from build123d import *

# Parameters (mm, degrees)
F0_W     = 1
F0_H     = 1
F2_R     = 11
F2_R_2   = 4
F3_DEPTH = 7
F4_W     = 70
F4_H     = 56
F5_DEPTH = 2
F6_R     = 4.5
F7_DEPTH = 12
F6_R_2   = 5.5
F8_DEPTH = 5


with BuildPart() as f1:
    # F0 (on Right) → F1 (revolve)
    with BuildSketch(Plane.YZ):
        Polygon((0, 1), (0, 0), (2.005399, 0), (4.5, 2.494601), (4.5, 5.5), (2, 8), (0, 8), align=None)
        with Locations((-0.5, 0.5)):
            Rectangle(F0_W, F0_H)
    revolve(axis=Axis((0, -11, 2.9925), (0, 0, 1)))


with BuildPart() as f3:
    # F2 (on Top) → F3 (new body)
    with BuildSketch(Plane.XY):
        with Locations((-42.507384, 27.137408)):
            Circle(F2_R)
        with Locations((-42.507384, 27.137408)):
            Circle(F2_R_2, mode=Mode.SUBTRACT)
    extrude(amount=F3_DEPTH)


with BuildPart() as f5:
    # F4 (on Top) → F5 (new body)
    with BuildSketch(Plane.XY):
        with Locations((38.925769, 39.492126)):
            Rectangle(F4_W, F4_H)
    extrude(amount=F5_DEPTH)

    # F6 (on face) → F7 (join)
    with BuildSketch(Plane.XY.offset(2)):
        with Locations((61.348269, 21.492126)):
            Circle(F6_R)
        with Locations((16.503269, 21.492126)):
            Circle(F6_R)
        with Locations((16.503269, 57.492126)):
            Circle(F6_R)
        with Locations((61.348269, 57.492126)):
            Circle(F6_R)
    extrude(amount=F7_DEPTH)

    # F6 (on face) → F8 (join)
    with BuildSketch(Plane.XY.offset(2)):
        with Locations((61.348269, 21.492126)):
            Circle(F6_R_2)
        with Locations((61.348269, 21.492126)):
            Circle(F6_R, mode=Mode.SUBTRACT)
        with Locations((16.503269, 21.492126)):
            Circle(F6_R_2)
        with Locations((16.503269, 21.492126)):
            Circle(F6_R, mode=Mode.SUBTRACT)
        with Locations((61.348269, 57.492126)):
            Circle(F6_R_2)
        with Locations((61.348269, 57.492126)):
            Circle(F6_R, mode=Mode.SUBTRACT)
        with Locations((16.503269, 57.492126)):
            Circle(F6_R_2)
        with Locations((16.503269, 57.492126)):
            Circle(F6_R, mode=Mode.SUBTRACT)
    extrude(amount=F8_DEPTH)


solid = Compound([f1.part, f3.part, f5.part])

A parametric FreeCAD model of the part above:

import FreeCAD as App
import Part
import Sketcher
Q = App.Units.Quantity

doc = App.newDocument("Part")
body = doc.addObject("PartDesign::Body", "Body")

# Sketch on YZ plane
sketch1 = body.newObject("Sketcher::SketchObject", "Sketch")
sketch1.AttachmentSupport = (doc.getObject("YZ_Plane"), [""])
sketch1.MapMode = "FlatFace"
sketch1.addGeometry(Part.LineSegment(App.Vector(2.005399, 0, 0), App.Vector(4.5, 2.494601, 0)), False)
sketch1.addGeometry(Part.LineSegment(App.Vector(4.5, 2.494601, 0), App.Vector(4.5, 5.5, 0)), False)
sketch1.addGeometry(Part.LineSegment(App.Vector(4.5, 5.5, 0), App.Vector(2, 8, 0)), False)
sketch1.addGeometry(Part.LineSegment(App.Vector(2, 8, 0), App.Vector(0, 8, 0)), False)
sketch1.addGeometry(Part.LineSegment(App.Vector(0, 8, 0), App.Vector(0, 1, 0)), False)
sketch1.addGeometry(Part.LineSegment(App.Vector(0, 1, 0), App.Vector(-1, 1, 0)), False)
sketch1.addGeometry(Part.LineSegment(App.Vector(-1, 1, 0), App.Vector(-1, 0, 0)), False)
sketch1.addGeometry(Part.LineSegment(App.Vector(-1, 0, 0), App.Vector(2.005399, 0, 0)), False)
sketch1.addGeometry(Part.LineSegment(App.Vector(-11, 0, 0), App.Vector(-11, 8, 0)), True)  # axis
sketch1.addConstraint(Sketcher.Constraint("Coincident", 0, 2, 1, 1))
sketch1.addConstraint(Sketcher.Constraint("Coincident", 1, 2, 2, 1))
sketch1.addConstraint(Sketcher.Constraint("Coincident", 2, 2, 3, 1))
sketch1.addConstraint(Sketcher.Constraint("Coincident", 3, 2, 4, 1))
sketch1.addConstraint(Sketcher.Constraint("Coincident", 4, 2, 5, 1))
sketch1.addConstraint(Sketcher.Constraint("Coincident", 5, 2, 6, 1))
sketch1.addConstraint(Sketcher.Constraint("Coincident", 6, 2, 7, 1))
sketch1.addConstraint(Sketcher.Constraint("Coincident", 7, 2, 0, 1))
sketch1.addConstraint(Sketcher.Constraint("Vertical", 1))
sketch1.addConstraint(Sketcher.Constraint("Horizontal", 3))
sketch1.addConstraint(Sketcher.Constraint("Vertical", 4))
sketch1.addConstraint(Sketcher.Constraint("Horizontal", 5))
sketch1.addConstraint(Sketcher.Constraint("Vertical", 6))
sketch1.addConstraint(Sketcher.Constraint("Horizontal", 7))
sketch1.addConstraint(Sketcher.Constraint("Vertical", 8))
sketch1.addConstraint(Sketcher.Constraint("PointOnObject", 3, 2, -2))
sketch1.addConstraint(Sketcher.Constraint("PointOnObject", 6, 2, -1))
sketch1.addConstraint(Sketcher.Constraint("PointOnObject", 8, 1, -1))
sketch1.addConstraint(Sketcher.Constraint("Perpendicular", 0, 2))
sketch1.addConstraint(Sketcher.Constraint("Horizontal", 3, 2, 8, 2))
sketch1.addConstraint(Sketcher.Constraint("Equal", 7, 1))
sketch1.addConstraint(Sketcher.Constraint("Equal", 5, 6))
sketch1.addConstraint(Sketcher.Constraint("DistanceX", 3, 2, 3, 1, Q("2 mm")))
sketch1.addConstraint(Sketcher.Constraint("DistanceX", 5, 2, 5, 1, Q("1 mm")))
sketch1.addConstraint(Sketcher.Constraint("DistanceY", 4, 2, 4, 1, Q("7 mm")))
sketch1.addConstraint(Sketcher.Constraint("Angle", 0, Q("45 deg")))
sketch1.addConstraint(Sketcher.Constraint("DistanceX", 8, 1, -1, 1, Q("11 mm")))
sketch1.addConstraint(Sketcher.Constraint("DistanceX", 7, 1, 7, 2, Q("3.005399 mm")))
revolution = body.newObject("PartDesign::Revolution", "Revolution")
revolution.Profile = sketch1
revolution.ReferenceAxis = (sketch1, ["Axis0"])
revolution.Angle = 360
body2 = doc.addObject("PartDesign::Body", "Body001")

# Sketch on XY plane
sketch2 = body2.newObject("Sketcher::SketchObject", "Sketch001")
sketch2.AttachmentSupport = (doc.getObject("XY_Plane001"), [""])
sketch2.MapMode = "FlatFace"
sketch2.addGeometry(Part.Circle(App.Vector(-42.507384, 27.137408, 0), App.Vector(0, 0, 1), 11), False)
sketch2.addGeometry(Part.Circle(App.Vector(-42.507384, 27.137408, 0), App.Vector(0, 0, 1), 4), False)
sketch2.addConstraint(Sketcher.Constraint("Coincident", 1, 3, 0, 3))
sketch2.addConstraint(Sketcher.Constraint("Diameter", 0, Q("22 mm")))
sketch2.addConstraint(Sketcher.Constraint("Diameter", 1, Q("8 mm")))
sketch2.addConstraint(Sketcher.Constraint("DistanceY", -1, 1, 0, 3, Q("27.137408 mm")))
sketch2.addConstraint(Sketcher.Constraint("DistanceX", 0, 3, -1, 1, Q("42.507384 mm")))
pad1 = body2.newObject("PartDesign::Pad", "Pad")
pad1.Profile = sketch2
pad1.Length = 7
body3 = doc.addObject("PartDesign::Body", "Body002")

# Sketch on XY plane
sketch3 = body3.newObject("Sketcher::SketchObject", "Sketch002")
sketch3.AttachmentSupport = (doc.getObject("XY_Plane002"), [""])
sketch3.MapMode = "FlatFace"
sketch3.addGeometry(Part.LineSegment(App.Vector(3.925769, 67.492126, 0), App.Vector(3.925769, 11.492126, 0)), False)
sketch3.addGeometry(Part.LineSegment(App.Vector(3.925769, 11.492126, 0), App.Vector(73.925769, 11.492126, 0)), False)
sketch3.addGeometry(Part.LineSegment(App.Vector(73.925769, 11.492126, 0), App.Vector(73.925769, 67.492126, 0)), False)
sketch3.addGeometry(Part.LineSegment(App.Vector(73.925769, 67.492126, 0), App.Vector(3.925769, 67.492126, 0)), False)
sketch3.addConstraint(Sketcher.Constraint("Coincident", 0, 2, 1, 1))
sketch3.addConstraint(Sketcher.Constraint("Coincident", 1, 2, 2, 1))
sketch3.addConstraint(Sketcher.Constraint("Coincident", 2, 2, 3, 1))
sketch3.addConstraint(Sketcher.Constraint("Coincident", 3, 2, 0, 1))
sketch3.addConstraint(Sketcher.Constraint("Vertical", 0))
sketch3.addConstraint(Sketcher.Constraint("Horizontal", 1))
sketch3.addConstraint(Sketcher.Constraint("Vertical", 2))
sketch3.addConstraint(Sketcher.Constraint("Horizontal", 3))
sketch3.addConstraint(Sketcher.Constraint("DistanceX", 1, 1, 1, 2, Q("70 mm")))
sketch3.addConstraint(Sketcher.Constraint("DistanceY", 0, 2, 0, 1, Q("56 mm")))
sketch3.addConstraint(Sketcher.Constraint("DistanceX", -1, 1, 0, 2, Q("3.925769 mm")))
sketch3.addConstraint(Sketcher.Constraint("DistanceY", -1, 1, 0, 2, Q("11.492126 mm")))
pad2 = body3.newObject("PartDesign::Pad", "Pad001")
pad2.Profile = sketch3
pad2.Length = 2

# Sketch on XY plane
sketch4 = body3.newObject("Sketcher::SketchObject", "Sketch003")
sketch4.AttachmentSupport = (doc.getObject("XY_Plane002"), [""])
sketch4.MapMode = "FlatFace"
sketch4.AttachmentOffset = App.Placement(App.Vector(0, 0, 2), App.Rotation())
sketch4.addGeometry(Part.Circle(App.Vector(61.348269, 21.492126, 0), App.Vector(0, 0, 1), 4.5), False)
sketch4.addGeometry(Part.Circle(App.Vector(16.503269, 21.492126, 0), App.Vector(0, 0, 1), 4.5), False)
sketch4.addGeometry(Part.Circle(App.Vector(16.503269, 57.492126, 0), App.Vector(0, 0, 1), 4.5), False)
sketch4.addGeometry(Part.Circle(App.Vector(61.348269, 57.492126, 0), App.Vector(0, 0, 1), 4.5), False)
sketch4.addConstraint(Sketcher.Constraint("Equal", 0, 1))
sketch4.addConstraint(Sketcher.Constraint("Equal", 1, 2))
sketch4.addConstraint(Sketcher.Constraint("Equal", 2, 3))
sketch4.addConstraint(Sketcher.Constraint("Horizontal", 0, 3, 1, 3))
sketch4.addConstraint(Sketcher.Constraint("Horizontal", 2, 3, 3, 3))
sketch4.addConstraint(Sketcher.Constraint("Vertical", 1, 3, 2, 3))
sketch4.addConstraint(Sketcher.Constraint("Vertical", 0, 3, 3, 3))
sketch4.addConstraint(Sketcher.Constraint("Diameter", 0, Q("9 mm")))
sketch4.addConstraint(Sketcher.Constraint("DistanceY", 1, 3, 2, 3, Q("36 mm")))
sketch4.addConstraint(Sketcher.Constraint("DistanceX", 1, 3, 0, 3, Q("44.845 mm")))
sketch4.addConstraint(Sketcher.Constraint("DistanceX", -1, 1, 0, 3, Q("61.348269 mm")))
sketch4.addConstraint(Sketcher.Constraint("DistanceY", -1, 1, 0, 3, Q("21.492126 mm")))
pad3 = body3.newObject("PartDesign::Pad", "Pad002")
pad3.Profile = sketch4
pad3.Length = 12

# Sketch on XY plane
sketch5 = body3.newObject("Sketcher::SketchObject", "Sketch004")
sketch5.AttachmentSupport = (doc.getObject("XY_Plane002"), [""])
sketch5.MapMode = "FlatFace"
sketch5.AttachmentOffset = App.Placement(App.Vector(0, 0, 2), App.Rotation())
sketch5.addGeometry(Part.Circle(App.Vector(61.348269, 21.492126, 0), App.Vector(0, 0, 1), 5.5), False)
sketch5.addGeometry(Part.Circle(App.Vector(61.348269, 21.492126, 0), App.Vector(0, 0, 1), 4.5), False)
sketch5.addGeometry(Part.Circle(App.Vector(16.503269, 21.492126, 0), App.Vector(0, 0, 1), 5.5), False)
sketch5.addGeometry(Part.Circle(App.Vector(16.503269, 21.492126, 0), App.Vector(0, 0, 1), 4.5), False)
sketch5.addGeometry(Part.Circle(App.Vector(61.348269, 57.492126, 0), App.Vector(0, 0, 1), 5.5), False)
sketch5.addGeometry(Part.Circle(App.Vector(61.348269, 57.492126, 0), App.Vector(0, 0, 1), 4.5), False)
sketch5.addGeometry(Part.Circle(App.Vector(16.503269, 57.492126, 0), App.Vector(0, 0, 1), 5.5), False)
sketch5.addGeometry(Part.Circle(App.Vector(16.503269, 57.492126, 0), App.Vector(0, 0, 1), 4.5), False)
sketch5.addConstraint(Sketcher.Constraint("Coincident", 1, 3, 0, 3))
sketch5.addConstraint(Sketcher.Constraint("Coincident", 3, 3, 2, 3))
sketch5.addConstraint(Sketcher.Constraint("Coincident", 5, 3, 4, 3))
sketch5.addConstraint(Sketcher.Constraint("Coincident", 7, 3, 6, 3))
sketch5.addConstraint(Sketcher.Constraint("Equal", 0, 2))
sketch5.addConstraint(Sketcher.Constraint("Equal", 1, 3))
sketch5.addConstraint(Sketcher.Constraint("Equal", 2, 4))
sketch5.addConstraint(Sketcher.Constraint("Equal", 3, 5))
sketch5.addConstraint(Sketcher.Constraint("Equal", 4, 6))
sketch5.addConstraint(Sketcher.Constraint("Equal", 5, 7))
sketch5.addConstraint(Sketcher.Constraint("Horizontal", 1, 3, 2, 3))
sketch5.addConstraint(Sketcher.Constraint("Horizontal", 5, 3, 6, 3))
sketch5.addConstraint(Sketcher.Constraint("Vertical", 1, 3, 4, 3))
sketch5.addConstraint(Sketcher.Constraint("Vertical", 3, 3, 6, 3))
sketch5.addConstraint(Sketcher.Constraint("Diameter", 0, Q("11 mm")))
sketch5.addConstraint(Sketcher.Constraint("Diameter", 1, Q("9 mm")))
sketch5.addConstraint(Sketcher.Constraint("DistanceY", 0, 3, 4, 3, Q("36 mm")))
sketch5.addConstraint(Sketcher.Constraint("DistanceX", 2, 3, 0, 3, Q("44.845 mm")))
sketch5.addConstraint(Sketcher.Constraint("DistanceX", -1, 1, 0, 3, Q("61.348269 mm")))
sketch5.addConstraint(Sketcher.Constraint("DistanceY", -1, 1, 0, 3, Q("21.492126 mm")))
pad4 = body3.newObject("PartDesign::Pad", "Pad003")
pad4.Profile = sketch5
pad4.Length = 5

doc.recompute()
